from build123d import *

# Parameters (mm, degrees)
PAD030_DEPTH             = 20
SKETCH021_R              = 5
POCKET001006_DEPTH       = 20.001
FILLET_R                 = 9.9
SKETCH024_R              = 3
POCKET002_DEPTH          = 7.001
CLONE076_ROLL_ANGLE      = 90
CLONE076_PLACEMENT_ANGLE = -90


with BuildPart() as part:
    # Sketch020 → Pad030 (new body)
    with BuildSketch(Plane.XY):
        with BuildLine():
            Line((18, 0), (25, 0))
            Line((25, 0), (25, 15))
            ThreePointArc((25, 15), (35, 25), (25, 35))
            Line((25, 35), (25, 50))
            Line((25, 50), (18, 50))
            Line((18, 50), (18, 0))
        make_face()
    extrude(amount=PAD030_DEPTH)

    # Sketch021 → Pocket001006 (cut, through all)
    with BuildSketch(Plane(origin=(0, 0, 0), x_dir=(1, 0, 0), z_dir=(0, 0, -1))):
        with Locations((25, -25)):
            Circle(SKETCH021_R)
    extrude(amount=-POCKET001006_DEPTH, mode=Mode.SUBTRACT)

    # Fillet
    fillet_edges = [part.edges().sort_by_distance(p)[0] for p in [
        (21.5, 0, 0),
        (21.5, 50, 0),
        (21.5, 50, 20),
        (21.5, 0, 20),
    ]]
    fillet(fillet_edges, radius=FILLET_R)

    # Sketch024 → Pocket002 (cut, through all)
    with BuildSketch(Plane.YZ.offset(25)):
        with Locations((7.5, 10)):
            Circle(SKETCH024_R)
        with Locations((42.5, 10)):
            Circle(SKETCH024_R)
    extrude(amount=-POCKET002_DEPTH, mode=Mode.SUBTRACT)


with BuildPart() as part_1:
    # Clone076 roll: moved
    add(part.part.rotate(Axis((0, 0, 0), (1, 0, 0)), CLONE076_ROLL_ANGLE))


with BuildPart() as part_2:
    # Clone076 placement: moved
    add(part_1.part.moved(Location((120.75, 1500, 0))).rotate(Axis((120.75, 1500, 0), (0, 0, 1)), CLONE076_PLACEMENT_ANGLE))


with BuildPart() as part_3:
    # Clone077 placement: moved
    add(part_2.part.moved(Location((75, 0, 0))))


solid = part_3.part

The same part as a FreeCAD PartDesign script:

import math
import FreeCAD as App
import Part
import Sketcher

V = App.Vector


def edges_at(feature, points):
    """Names of the edges that pass closest to the given points."""
    edges = feature.Shape.Edges
    near = lambda p: min(range(len(edges)), key=lambda i: edges[i].distToShape(Part.Vertex(*p))[0])
    return sorted({f"Edge{near(p) + 1}" for p in points})

doc = App.newDocument("Part")
body = doc.addObject("PartDesign::Body", "Body")

# Sketch on XY plane
sketch1 = body.newObject("Sketcher::SketchObject", "Sketch")
sketch1.AttachmentSupport = (doc.getObject("XY_Plane"), [""])
sketch1.MapMode = "FlatFace"
sketch1.addGeometry([
    Part.LineSegment(V(18, 0, 0), V(25, 0, 0)),  # 0
    Part.LineSegment(V(25, 0, 0), V(25, 15, 0)),  # 1
    Part.ArcOfCircle(Part.Circle(V(25, 25, 0), V(0, 0, 1), 10), math.radians(-90), math.radians(90)),  # 2
    Part.LineSegment(V(25, 35, 0), V(25, 50, 0)),  # 3
    Part.LineSegment(V(25, 50, 0), V(18, 50, 0)),  # 4
    Part.LineSegment(V(18, 50, 0), V(18, 0, 0)),  # 5
], False)
sketch1.addConstraint([
    Sketcher.Constraint("Coincident", 0, 2, 1, 1),
    Sketcher.Constraint("Coincident", 1, 2, 2, 1),
    Sketcher.Constraint("Coincident", 2, 2, 3, 1),
    Sketcher.Constraint("Coincident", 3, 2, 4, 1),
    Sketcher.Constraint("Coincident", 4, 2, 5, 1),
    Sketcher.Constraint("Coincident", 5, 2, 0, 1),
    Sketcher.Constraint("Horizontal", 0),
    Sketcher.Constraint("Vertical", 1),
    Sketcher.Constraint("Vertical", 3),
    Sketcher.Constraint("Horizontal", 4),
    Sketcher.Constraint("Vertical", 5),
    Sketcher.Constraint("PointOnObject", 0, 2, -1),
    Sketcher.Constraint("Vertical", 2, 3, 0, 2),
    Sketcher.Constraint("Vertical", 1, 2, 2, 2),
    Sketcher.Constraint("Equal", 1, 3),
    Sketcher.Constraint("Radius", 2, 10.0),
    Sketcher.Constraint("DistanceX", 0, 1, 0, 2, 7.0),
    Sketcher.Constraint("DistanceY", 1, 1, 1, 2, 15.0),
    Sketcher.Constraint("DistanceX", -1, 1, 2, 3, 25.0),
])
pad1 = body.newObject("PartDesign::Pad", "Pad")
pad1.Profile = sketch1
pad1.Length = 20

# Sketch on XY plane
sketch2 = body.newObject("Sketcher::SketchObject", "Sketch001")
sketch2.AttachmentSupport = (doc.getObject("XY_Plane"), [""])
sketch2.MapMode = "FlatFace"
sketch2.addGeometry(Part.Circle(V(25, 25, 0), V(0, 0, 1), 5), False)
sketch2.addConstraint([
    Sketcher.Constraint("Diameter", 0, 10.0),
    Sketcher.Constraint("DistanceX", -1, 1, 0, 3, 25.0),
    Sketcher.Constraint("DistanceY", -1, 1, 0, 3, 25.0),
])
pocket1 = body.newObject("PartDesign::Pocket", "Pocket")
pocket1.Profile = sketch2
pocket1.Type = "ThroughAll"
pocket1.Reversed = True
doc.recompute()

fillet = body.newObject("PartDesign::Fillet", "Fillet")
fillet.Base = (pocket1, edges_at(pocket1, [
    (21.5, 0, 0),
    (21.5, 50, 0),
    (21.5, 50, 20),
    (21.5, 0, 20),
]))
fillet.Radius = 9.9

# Sketch on YZ plane
sketch3 = body.newObject("Sketcher::SketchObject", "Sketch002")
sketch3.AttachmentSupport = (doc.getObject("YZ_Plane"), [""])
sketch3.MapMode = "FlatFace"
sketch3.AttachmentOffset = App.Placement(V(0, 0, 25), App.Rotation())
sketch3.addGeometry([
    Part.Circle(V(7.5, 10, 0), V(0, 0, 1), 3),
    Part.Circle(V(42.5, 10, 0), V(0, 0, 1), 3),
], False)
sketch3.addConstraint([
    Sketcher.Constraint("Equal", 0, 1),
    Sketcher.Constraint("Horizontal", 0, 3, 1, 3),
    Sketcher.Constraint("Diameter", 0, 6.0),
    Sketcher.Constraint("DistanceY", -1, 1, 0, 3, 10.0),
    Sketcher.Constraint("DistanceX", 0, 3, 1, 3, 35.0),
    Sketcher.Constraint("DistanceX", -1, 1, 0, 3, 7.5),
])
pocket2 = body.newObject("PartDesign::Pocket", "Pocket001")
pocket2.Profile = sketch3
pocket2.Type = "ThroughAll"
body2 = doc.addObject("PartDesign::Body", "Body001")
doc.recompute()

body.Placement = App.Placement(V(0, 0, 0), App.Rotation(V(1, 0, 0), 90))
boolean = body2.newObject("PartDesign::Boolean", "Boolean")
boolean.Type = "Fuse"
boolean.addObjects([body])
body3 = doc.addObject("PartDesign::Body", "Body002")
doc.recompute()

body2.Placement = App.Placement(V(120.75, 1500, 0), App.Rotation(V(0, 0, 1), 270))
boolean2 = body3.newObject("PartDesign::Boolean", "Boolean001")
boolean2.Type = "Fuse"
boolean2.addObjects([body2])
body4 = doc.addObject("PartDesign::Body", "Body003")
doc.recompute()

body3.Placement = App.Placement(V(75, 0, 0), App.Rotation(V(0, 0, 1), 0))
boolean3 = body4.newObject("PartDesign::Boolean", "Boolean002")
boolean3.Type = "Fuse"
boolean3.addObjects([body3])

doc.recompute()
